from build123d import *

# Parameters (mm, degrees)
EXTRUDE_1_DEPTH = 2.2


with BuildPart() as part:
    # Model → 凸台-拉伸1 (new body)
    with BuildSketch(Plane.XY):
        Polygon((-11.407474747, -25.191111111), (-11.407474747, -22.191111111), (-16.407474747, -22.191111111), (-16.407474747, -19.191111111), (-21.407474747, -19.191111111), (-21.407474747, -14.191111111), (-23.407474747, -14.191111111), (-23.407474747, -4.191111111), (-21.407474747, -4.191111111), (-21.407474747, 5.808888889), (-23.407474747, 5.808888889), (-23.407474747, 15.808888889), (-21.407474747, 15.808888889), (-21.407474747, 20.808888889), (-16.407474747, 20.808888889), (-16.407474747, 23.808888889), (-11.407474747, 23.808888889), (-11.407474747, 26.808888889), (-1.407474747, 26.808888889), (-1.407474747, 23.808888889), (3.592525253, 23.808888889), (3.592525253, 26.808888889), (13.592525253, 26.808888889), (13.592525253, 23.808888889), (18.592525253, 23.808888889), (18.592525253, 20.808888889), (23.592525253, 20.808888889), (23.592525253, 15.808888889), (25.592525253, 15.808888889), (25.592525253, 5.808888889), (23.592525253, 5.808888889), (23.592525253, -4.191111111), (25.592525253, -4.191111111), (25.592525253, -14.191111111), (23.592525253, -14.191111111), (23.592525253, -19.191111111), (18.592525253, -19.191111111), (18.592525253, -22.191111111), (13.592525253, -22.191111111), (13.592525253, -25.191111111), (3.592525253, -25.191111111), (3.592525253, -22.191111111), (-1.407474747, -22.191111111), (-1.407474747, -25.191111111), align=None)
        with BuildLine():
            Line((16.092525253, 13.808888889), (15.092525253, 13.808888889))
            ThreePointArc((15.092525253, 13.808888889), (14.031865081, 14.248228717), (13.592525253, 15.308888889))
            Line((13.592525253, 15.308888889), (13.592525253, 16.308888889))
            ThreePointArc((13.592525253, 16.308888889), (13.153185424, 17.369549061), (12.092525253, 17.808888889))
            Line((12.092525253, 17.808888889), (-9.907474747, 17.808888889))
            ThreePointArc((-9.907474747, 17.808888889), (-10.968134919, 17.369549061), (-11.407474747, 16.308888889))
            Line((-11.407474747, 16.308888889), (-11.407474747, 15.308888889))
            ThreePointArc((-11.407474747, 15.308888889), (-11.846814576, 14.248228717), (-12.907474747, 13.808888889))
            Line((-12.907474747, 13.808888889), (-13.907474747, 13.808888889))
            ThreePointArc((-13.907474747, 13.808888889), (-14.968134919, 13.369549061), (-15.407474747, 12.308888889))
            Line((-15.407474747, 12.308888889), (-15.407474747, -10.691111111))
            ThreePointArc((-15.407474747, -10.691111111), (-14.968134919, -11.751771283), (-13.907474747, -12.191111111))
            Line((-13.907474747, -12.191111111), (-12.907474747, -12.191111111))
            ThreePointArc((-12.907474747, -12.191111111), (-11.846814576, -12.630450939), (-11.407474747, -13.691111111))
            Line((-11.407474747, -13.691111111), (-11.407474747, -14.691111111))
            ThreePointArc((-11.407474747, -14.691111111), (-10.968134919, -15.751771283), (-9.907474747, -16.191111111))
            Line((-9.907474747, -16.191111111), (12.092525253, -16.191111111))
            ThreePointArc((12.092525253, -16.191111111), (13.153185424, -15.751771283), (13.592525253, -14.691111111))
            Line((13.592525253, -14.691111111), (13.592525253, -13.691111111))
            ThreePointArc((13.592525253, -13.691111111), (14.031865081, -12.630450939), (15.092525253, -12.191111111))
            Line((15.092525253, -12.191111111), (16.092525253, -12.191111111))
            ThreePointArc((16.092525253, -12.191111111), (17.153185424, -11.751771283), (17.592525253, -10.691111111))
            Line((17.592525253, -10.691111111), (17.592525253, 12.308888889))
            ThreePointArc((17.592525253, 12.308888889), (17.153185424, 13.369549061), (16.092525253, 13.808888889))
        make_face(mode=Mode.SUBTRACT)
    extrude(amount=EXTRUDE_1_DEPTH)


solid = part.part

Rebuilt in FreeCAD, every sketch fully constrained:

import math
import FreeCAD as App
import Part
import Sketcher


def add_polygon(sketch, points):
    """Adds a closed chain of lines whose ends are joined by coincident constraints."""
    first, n = sketch.GeometryCount, len(points)
    for a, b in zip(points, points[1:] + points[:1]):
        sketch.addGeometry(Part.LineSegment(App.Vector(*a, 0), App.Vector(*b, 0)), False)
    for i in range(n):
        sketch.addConstraint(Sketcher.Constraint("Coincident", first + i, 2, first + (i + 1) % n, 1))

doc = App.newDocument("Part")
body = doc.addObject("PartDesign::Body", "Body")

# Sketch on XY plane
sketch1 = body.newObject("Sketcher::SketchObject", "Sketch")
sketch1.AttachmentSupport = (doc.getObject("XY_Plane"), [""])
sketch1.MapMode = "FlatFace"
add_polygon(sketch1, [(-11.4, -22.2), (-11.4, -25.2), (-1.4, -25.2), (-1.4, -22.2), (3.6, -22.2), (3.6, -25.2), (13.6, -25.2), (13.6, -22.2), (18.6, -22.2), (18.6, -19.2), (23.6, -19.2), (23.6, -14.2), (25.6, -14.2), (25.6, -4.2), (23.6, -4.2), (23.6, 5.8), (25.6, 5.8), (25.6, 15.8), (23.6, 15.8), (23.6, 20.8), (18.6, 20.8), (18.6, 23.8), (13.6, 23.8), (13.6, 26.8), (3.6, 26.8), (3.6, 23.8), (-1.4, 23.8), (-1.4, 26.8), (-11.4, 26.8), (-11.4, 23.8), (-16.4, 23.8), (-16.4, 20.8), (-21.4, 20.8), (-21.4, 15.8), (-23.4, 15.8), (-23.4, 5.8), (-21.4, 5.8), (-21.4, -4.2), (-23.4, -4.2), (-23.4, -14.2), (-21.4, -14.2), (-21.4, -19.2), (-16.4, -19.2), (-16.4, -22.2)])  # lines 0-43
sketch1.addGeometry(Part.ArcOfCircle(Part.Circle(App.Vector(16.1, 12.3, 0), App.Vector(0, 0, 1), 1.5), math.radians(0), math.radians(90)), False)  # 44
sketch1.addGeometry(Part.LineSegment(App.Vector(17.6, 12.3, 0), App.Vector(17.6, -10.7, 0)), False)  # 45
sketch1.addGeometry(Part.ArcOfCircle(Part.Circle(App.Vector(16.1, -10.7, 0), App.Vector(0, 0, 1), 1.5), math.radians(-90), math.radians(0)), False)  # 46
sketch1.addGeometry(Part.LineSegment(App.Vector(16.1, -12.2, 0), App.Vector(15.1, -12.2, 0)), False)  # 47
sketch1.addGeometry(Part.ArcOfCircle(Part.Circle(App.Vector(15.1, -13.7, 0), App.Vector(0, 0, 1), 1.5), math.radians(90), math.radians(180)), False)  # 48
sketch1.addGeometry(Part.LineSegment(App.Vector(13.6, -13.7, 0), App.Vector(13.6, -14.7, 0)), False)  # 49
sketch1.addGeometry(Part.ArcOfCircle(Part.Circle(App.Vector(12.1, -14.7, 0), App.Vector(0, 0, 1), 1.5), math.radians(-90), math.radians(0)), False)  # 50
sketch1.addGeometry(Part.LineSegment(App.Vector(12.1, -16.2, 0), App.Vector(-9.9, -16.2, 0)), False)  # 51
sketch1.addGeometry(Part.ArcOfCircle(Part.Circle(App.Vector(-9.9, -14.7, 0), App.Vector(0, 0, 1), 1.5), math.radians(180), math.radians(270)), False)  # 52
sketch1.addGeometry(Part.LineSegment(App.Vector(-11.4, -14.7, 0), App.Vector(-11.4, -13.7, 0)), False)  # 53
sketch1.addGeometry(Part.ArcOfCircle(Part.Circle(App.Vector(-12.9, -13.7, 0), App.Vector(0, 0, 1), 1.5), math.radians(0), math.radians(90)), False)  # 54
sketch1.addGeometry(Part.LineSegment(App.Vector(-12.9, -12.2, 0), App.Vector(-13.9, -12.2, 0)), False)  # 55
sketch1.addGeometry(Part.ArcOfCircle(Part.Circle(App.Vector(-13.9, -10.7, 0), App.Vector(0, 0, 1), 1.5), math.radians(180), math.radians(270)), False)  # 56
sketch1.addGeometry(Part.LineSegment(App.Vector(-15.4, -10.7, 0), App.Vector(-15.4, 12.3, 0)), False)  # 57
sketch1.addGeometry(Part.ArcOfCircle(Part.Circle(App.Vector(-13.9, 12.3, 0), App.Vector(0, 0, 1), 1.5), math.radians(90), math.radians(180)), False)  # 58
sketch1.addGeometry(Part.LineSegment(App.Vector(-13.9, 13.8, 0), App.Vector(-12.9, 13.8, 0)), False)  # 59
sketch1.addGeometry(Part.ArcOfCircle(Part.Circle(App.Vector(-12.9, 15.3, 0), App.Vector(0, 0, 1), 1.5), math.radians(-90), math.radians(0)), False)  # 60
sketch1.addGeometry(Part.LineSegment(App.Vector(-11.4, 15.3, 0), App.Vector(-11.4, 16.3, 0)), False)  # 61
sketch1.addGeometry(Part.ArcOfCircle(Part.Circle(App.Vector(-9.9, 16.3, 0), App.Vector(0, 0, 1), 1.5), math.radians(90), math.radians(180)), False)  # 62
sketch1.addGeometry(Part.LineSegment(App.Vector(-9.9, 17.8, 0), App.Vector(12.1, 17.8, 0)), False)  # 63
sketch1.addGeometry(Part.ArcOfCircle(Part.Circle(App.Vector(12.1, 16.3, 0), App.Vector(0, 0, 1), 1.5), math.radians(0), math.radians(90)), False)  # 64
sketch1.addGeometry(Part.LineSegment(App.Vector(13.6, 16.3, 0), App.Vector(13.6, 15.3, 0)), False)  # 65
sketch1.addGeometry(Part.ArcOfCircle(Part.Circle(App.Vector(15.1, 15.3, 0), App.Vector(0, 0, 1), 1.5), math.radians(180), math.radians(270)), False)  # 66
sketch1.addGeometry(Part.LineSegment(App.Vector(15.1, 13.8, 0), App.Vector(16.1, 13.8, 0)), False)  # 67
sketch1.addConstraint([
    Sketcher.Constraint("Tangent", 44, 1, 45, 1),
    Sketcher.Constraint("Tangent", 45, 2, 46, 2),
    Sketcher.Constraint("Tangent", 46, 1, 47, 1),
    Sketcher.Constraint("Tangent", 47, 2, 48, 1),
    Sketcher.Constraint("Tangent", 48, 2, 49, 1),
    Sketcher.Constraint("Tangent", 49, 2, 50, 2),
    Sketcher.Constraint("Tangent", 50, 1, 51, 1),
    Sketcher.Constraint("Tangent", 51, 2, 52, 2),
    Sketcher.Constraint("Tangent", 52, 1, 53, 1),
    Sketcher.Constraint("Tangent", 53, 2, 54, 1),
    Sketcher.Constraint("Tangent", 54, 2, 55, 1),
    Sketcher.Constraint("Tangent", 55, 2, 56, 2),
    Sketcher.Constraint("Tangent", 56, 1, 57, 1),
    Sketcher.Constraint("Tangent", 57, 2, 58, 2),
    Sketcher.Constraint("Tangent", 58, 1, 59, 1),
    Sketcher.Constraint("Tangent", 59, 2, 60, 1),
    Sketcher.Constraint("Tangent", 60, 2, 61, 1),
    Sketcher.Constraint("Tangent", 61, 2, 62, 2),
    Sketcher.Constraint("Tangent", 62, 1, 63, 1),
    Sketcher.Constraint("Tangent", 63, 2, 64, 2),
    Sketcher.Constraint("Tangent", 64, 1, 65, 1),
    Sketcher.Constraint("Tangent", 65, 2, 66, 1),
    Sketcher.Constraint("Tangent", 66, 2, 67, 1),
    Sketcher.Constraint("Tangent", 67, 2, 44, 2),
    Sketcher.Constraint("Vertical", 0),
    Sketcher.Constraint("Horizontal", 1),
    Sketcher.Constraint("Vertical", 2),
    Sketcher.Constraint("Horizontal", 3),
    Sketcher.Constraint("Vertical", 4),
    Sketcher.Constraint("Horizontal", 5),
    Sketcher.Constraint("Vertical", 6),
    Sketcher.Constraint("Horizontal", 7),
    Sketcher.Constraint("Vertical", 8),
    Sketcher.Constraint("Horizontal", 9),
    Sketcher.Constraint("Vertical", 10),
    Sketcher.Constraint("Horizontal", 11),
    Sketcher.Constraint("Vertical", 12),
    Sketcher.Constraint("Horizontal", 13),
    Sketcher.Constraint("Vertical", 14),
    Sketcher.Constraint("Horizontal", 15),
    Sketcher.Constraint("Vertical", 16),
    Sketcher.Constraint("Horizontal", 17),
    Sketcher.Constraint("Vertical", 18),
    Sketcher.Constraint("Horizontal", 19),
    Sketcher.Constraint("Vertical", 20),
    Sketcher.Constraint("Horizontal", 21),
    Sketcher.Constraint("Vertical", 22),
    Sketcher.Constraint("Horizontal", 23),
    Sketcher.Constraint("Vertical", 24),
    Sketcher.Constraint("Horizontal", 25),
    Sketcher.Constraint("Vertical", 26),
    Sketcher.Constraint("Horizontal", 27),
    Sketcher.Constraint("Vertical", 28),
    Sketcher.Constraint("Horizontal", 29),
    Sketcher.Constraint("Vertical", 30),
    Sketcher.Constraint("Horizontal", 31),
    Sketcher.Constraint("Vertical", 32),
    Sketcher.Constraint("Horizontal", 33),
    Sketcher.Constraint("Vertical", 34),
    Sketcher.Constraint("Horizontal", 35),
    Sketcher.Constraint("Vertical", 36),
    Sketcher.Constraint("Horizontal", 37),
    Sketcher.Constraint("Vertical", 38),
    Sketcher.Constraint("Horizontal", 39),
    Sketcher.Constraint("Vertical", 40),
    Sketcher.Constraint("Horizontal", 41),
    Sketcher.Constraint("Vertical", 42),
    Sketcher.Constraint("Horizontal", 43),
    Sketcher.Constraint("Vertical", 45),
    Sketcher.Constraint("Horizontal", 47),
    Sketcher.Constraint("Vertical", 49),
    Sketcher.Constraint("Horizontal", 51),
    Sketcher.Constraint("Vertical", 53),
    Sketcher.Constraint("Horizontal", 55),
    Sketcher.Constraint("Vertical", 57),
    Sketcher.Constraint("Horizontal", 59),
    Sketcher.Constraint("Vertical", 61),
    Sketcher.Constraint("Horizontal", 63),
    Sketcher.Constraint("Vertical", 65),
    Sketcher.Constraint("Horizontal", 67),
    Sketcher.Constraint("Equal", 44, 46),
    Sketcher.Constraint("Equal", 46, 48),
    Sketcher.Constraint("Equal", 48, 50),
    Sketcher.Constraint("Equal", 50, 52),
    Sketcher.Constraint("Equal", 52, 54),
    Sketcher.Constraint("Equal", 54, 56),
    Sketcher.Constraint("Equal", 56, 58),
    Sketcher.Constraint("Equal", 58, 60),
    Sketcher.Constraint("Equal", 60, 62),
    Sketcher.Constraint("Equal", 62, 64),
    Sketcher.Constraint("Equal", 64, 66),
    Sketcher.Constraint("Horizontal", 48, 3, 54, 3),
    Sketcher.Constraint("Horizontal", 44, 3, 58, 3),
    Sketcher.Constraint("Horizontal", 1, 2, 4, 2),
    Sketcher.Constraint("Horizontal", 3, 2, 6, 2),
    Sketcher.Constraint("Horizontal", 21, 2, 24, 2),
    Sketcher.Constraint("Horizontal", 23, 2, 26, 2),
    Sketcher.Constraint("Horizontal", 25, 2, 28, 2),
    Sketcher.Constraint("Horizontal", 19, 2, 30, 2),
    Sketcher.Constraint("Horizontal", 17, 2, 32, 2),
    Sketcher.Constraint("Horizontal", 15, 2, 34, 2),
    Sketcher.Constraint("Horizontal", 13, 2, 36, 2),
    Sketcher.Constraint("Horizontal", 11, 2, 38, 2),
    Sketcher.Constraint("Horizontal", 9, 2, 40, 2),
    Sketcher.Constraint("Horizontal", 7, 2, 42, 2),
    Sketcher.Constraint("Vertical", 54, 3, 60, 3),
    Sketcher.Constraint("Vertical", 50, 3, 64, 3),
    Sketcher.Constraint("Vertical", 10, 2, 13, 2),
    Sketcher.Constraint("Vertical", 12, 2, 15, 2),
    Sketcher.Constraint("Vertical", 14, 2, 17, 2),
    Sketcher.Constraint("Vertical", 8, 2, 19, 2),
    Sketcher.Constraint("Vertical", 6, 2, 21, 2),
    Sketcher.Constraint("Vertical", 4, 2, 23, 2),
    Sketcher.Constraint("Vertical", 2, 2, 25, 2),
    Sketcher.Constraint("Vertical", 0, 2, 27, 2),
    Sketcher.Constraint("Vertical", 32, 2, 35, 2),
    Sketcher.Constraint("Vertical", 34, 2, 37, 2),
    Sketcher.Constraint("Vertical", 36, 2, 39, 2),
    Sketcher.Constraint("Vertical", 30, 2, 41, 2),
    Sketcher.Constraint("Vertical", 22, 2, 48, 2),
    Sketcher.Constraint("Vertical", 43, 2, 52, 1),
    Sketcher.Constraint("Equal", 1, 5),
    Sketcher.Constraint("Equal", 3, 7),
    Sketcher.Constraint("Equal", 7, 9),
    Sketcher.Constraint("Equal", 25, 29),
    Sketcher.Constraint("Equal", 29, 31),
    Sketcher.Constraint("Equal", 17, 33),
    Sketcher.Constraint("Equal", 47, 55),
    Sketcher.Constraint("Equal", 6, 8),
    Sketcher.Constraint("Equal", 43, 10),
    Sketcher.Constraint("Equal", 27, 12),
    Sketcher.Constraint("Equal", 12, 14),
    Sketcher.Constraint("Equal", 14, 16),
    Sketcher.Constraint("Equal", 10, 18),
    Sketcher.Constraint("Equal", 8, 20),
    Sketcher.Constraint("Equal", 20, 22),
    Sketcher.Constraint("Equal", 67, 49),
    Sketcher.Constraint("Equal", 53, 61),
    Sketcher.Constraint("Radius", 44, 1.5),
    Sketcher.Constraint("DistanceX", 1, 1, 1, 2, 10.0),
    Sketcher.Constraint("DistanceX", 3, 1, 3, 2, 5.0),
    Sketcher.Constraint("DistanceX", 11, 1, 11, 2, 2.0),
    Sketcher.Constraint("DistanceX", 47, 2, 47, 1, 1.0),
    Sketcher.Constraint("DistanceY", 0, 2, 0, 1, 3.0),
    Sketcher.Constraint("DistanceY", 45, 2, 45, 1, 23.0),
    Sketcher.Constraint("DistanceY", -1, 1, 44, 3, 12.308889),
    Sketcher.Constraint("DistanceY", 0, 2, -1, 1, 25.191111),
    Sketcher.Constraint("DistanceX", -1, 1, 44, 3, 16.092525),
])
pad1 = body.newObject("PartDesign::Pad", "Pad")
pad1.Profile = sketch1
pad1.Length = 2.2

doc.recompute()
